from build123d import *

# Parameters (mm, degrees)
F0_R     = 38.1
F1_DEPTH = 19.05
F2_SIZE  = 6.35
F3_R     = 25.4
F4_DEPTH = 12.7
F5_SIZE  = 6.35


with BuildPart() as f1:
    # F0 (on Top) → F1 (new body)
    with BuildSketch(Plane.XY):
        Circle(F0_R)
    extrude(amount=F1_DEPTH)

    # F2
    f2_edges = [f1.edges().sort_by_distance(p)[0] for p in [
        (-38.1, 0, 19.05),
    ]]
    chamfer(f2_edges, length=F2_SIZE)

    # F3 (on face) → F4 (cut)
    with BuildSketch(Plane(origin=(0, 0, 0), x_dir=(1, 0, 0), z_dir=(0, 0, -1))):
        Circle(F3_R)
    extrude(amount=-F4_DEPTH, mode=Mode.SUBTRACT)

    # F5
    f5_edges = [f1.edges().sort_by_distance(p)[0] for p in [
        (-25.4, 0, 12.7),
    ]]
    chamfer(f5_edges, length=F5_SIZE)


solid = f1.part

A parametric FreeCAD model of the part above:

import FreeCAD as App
import Part
import Sketcher
Q = App.Units.Quantity


def edges_at(feature, points):
    """Names of the edges that pass closest to the given points."""
    edges = feature.Shape.Edges
    near = lambda p: min(range(len(edges)), key=lambda i: edges[i].distToShape(Part.Vertex(*p))[0])
    return sorted({f"Edge{near(p) + 1}" for p in points})

doc = App.newDocument("Part")
body = doc.addObject("PartDesign::Body", "Body")

# Sketch on XY plane
sketch1 = doc.addObject("Sketcher::SketchObject", "Sketch")
body.addObject(sketch1)
sketch1.AttachmentSupport = (doc.XY_Plane, [""])
sketch1.MapMode = "FlatFace"
sketch1.addGeometry(Part.Circle(App.Vector(0, 0, 0), App.Vector(0, 0, 1), 38), False)
sketch1.addConstraint([
    Sketcher.Constraint("Coincident", 0, 3, -1, 1),
    Sketcher.Constraint("Diameter", 0, Q("3 in")),
])
pad1 = doc.addObject("PartDesign::Pad", "Pad")
body.addObject(pad1)
pad1.Profile = sketch1
pad1.Length = Q("0.75 in")
doc.recompute()

chamfer = doc.addObject("PartDesign::Chamfer", "Chamfer")
body.addObject(chamfer)
chamfer.Base = (pad1, edges_at(pad1, [(-38.1, 0, 19.05)]))
chamfer.Size = Q("0.25 in")

# Sketch on XY plane
sketch2 = doc.addObject("Sketcher::SketchObject", "Sketch001")
body.addObject(sketch2)
sketch2.AttachmentSupport = (doc.XY_Plane, [""])
sketch2.MapMode = "FlatFace"
sketch2.addGeometry(Part.Circle(App.Vector(0, 0, 0), App.Vector(0, 0, 1), 25), False)
sketch2.addConstraint([
    Sketcher.Constraint("Coincident", 0, 3, -1, 1),
    Sketcher.Constraint("Diameter", 0, Q("2 in")),
])
pocket1 = doc.addObject("PartDesign::Pocket", "Pocket")
body.addObject(pocket1)
pocket1.Profile = sketch2
pocket1.Length = Q("0.5 in")
pocket1.Reversed = True
doc.recompute()

chamfer2 = doc.addObject("PartDesign::Chamfer", "Chamfer001")
body.addObject(chamfer2)
chamfer2.Base = (pocket1, edges_at(pocket1, [(-25.4, 0, 12.7)]))
chamfer2.Size = Q("0.25 in")

doc.recompute()
